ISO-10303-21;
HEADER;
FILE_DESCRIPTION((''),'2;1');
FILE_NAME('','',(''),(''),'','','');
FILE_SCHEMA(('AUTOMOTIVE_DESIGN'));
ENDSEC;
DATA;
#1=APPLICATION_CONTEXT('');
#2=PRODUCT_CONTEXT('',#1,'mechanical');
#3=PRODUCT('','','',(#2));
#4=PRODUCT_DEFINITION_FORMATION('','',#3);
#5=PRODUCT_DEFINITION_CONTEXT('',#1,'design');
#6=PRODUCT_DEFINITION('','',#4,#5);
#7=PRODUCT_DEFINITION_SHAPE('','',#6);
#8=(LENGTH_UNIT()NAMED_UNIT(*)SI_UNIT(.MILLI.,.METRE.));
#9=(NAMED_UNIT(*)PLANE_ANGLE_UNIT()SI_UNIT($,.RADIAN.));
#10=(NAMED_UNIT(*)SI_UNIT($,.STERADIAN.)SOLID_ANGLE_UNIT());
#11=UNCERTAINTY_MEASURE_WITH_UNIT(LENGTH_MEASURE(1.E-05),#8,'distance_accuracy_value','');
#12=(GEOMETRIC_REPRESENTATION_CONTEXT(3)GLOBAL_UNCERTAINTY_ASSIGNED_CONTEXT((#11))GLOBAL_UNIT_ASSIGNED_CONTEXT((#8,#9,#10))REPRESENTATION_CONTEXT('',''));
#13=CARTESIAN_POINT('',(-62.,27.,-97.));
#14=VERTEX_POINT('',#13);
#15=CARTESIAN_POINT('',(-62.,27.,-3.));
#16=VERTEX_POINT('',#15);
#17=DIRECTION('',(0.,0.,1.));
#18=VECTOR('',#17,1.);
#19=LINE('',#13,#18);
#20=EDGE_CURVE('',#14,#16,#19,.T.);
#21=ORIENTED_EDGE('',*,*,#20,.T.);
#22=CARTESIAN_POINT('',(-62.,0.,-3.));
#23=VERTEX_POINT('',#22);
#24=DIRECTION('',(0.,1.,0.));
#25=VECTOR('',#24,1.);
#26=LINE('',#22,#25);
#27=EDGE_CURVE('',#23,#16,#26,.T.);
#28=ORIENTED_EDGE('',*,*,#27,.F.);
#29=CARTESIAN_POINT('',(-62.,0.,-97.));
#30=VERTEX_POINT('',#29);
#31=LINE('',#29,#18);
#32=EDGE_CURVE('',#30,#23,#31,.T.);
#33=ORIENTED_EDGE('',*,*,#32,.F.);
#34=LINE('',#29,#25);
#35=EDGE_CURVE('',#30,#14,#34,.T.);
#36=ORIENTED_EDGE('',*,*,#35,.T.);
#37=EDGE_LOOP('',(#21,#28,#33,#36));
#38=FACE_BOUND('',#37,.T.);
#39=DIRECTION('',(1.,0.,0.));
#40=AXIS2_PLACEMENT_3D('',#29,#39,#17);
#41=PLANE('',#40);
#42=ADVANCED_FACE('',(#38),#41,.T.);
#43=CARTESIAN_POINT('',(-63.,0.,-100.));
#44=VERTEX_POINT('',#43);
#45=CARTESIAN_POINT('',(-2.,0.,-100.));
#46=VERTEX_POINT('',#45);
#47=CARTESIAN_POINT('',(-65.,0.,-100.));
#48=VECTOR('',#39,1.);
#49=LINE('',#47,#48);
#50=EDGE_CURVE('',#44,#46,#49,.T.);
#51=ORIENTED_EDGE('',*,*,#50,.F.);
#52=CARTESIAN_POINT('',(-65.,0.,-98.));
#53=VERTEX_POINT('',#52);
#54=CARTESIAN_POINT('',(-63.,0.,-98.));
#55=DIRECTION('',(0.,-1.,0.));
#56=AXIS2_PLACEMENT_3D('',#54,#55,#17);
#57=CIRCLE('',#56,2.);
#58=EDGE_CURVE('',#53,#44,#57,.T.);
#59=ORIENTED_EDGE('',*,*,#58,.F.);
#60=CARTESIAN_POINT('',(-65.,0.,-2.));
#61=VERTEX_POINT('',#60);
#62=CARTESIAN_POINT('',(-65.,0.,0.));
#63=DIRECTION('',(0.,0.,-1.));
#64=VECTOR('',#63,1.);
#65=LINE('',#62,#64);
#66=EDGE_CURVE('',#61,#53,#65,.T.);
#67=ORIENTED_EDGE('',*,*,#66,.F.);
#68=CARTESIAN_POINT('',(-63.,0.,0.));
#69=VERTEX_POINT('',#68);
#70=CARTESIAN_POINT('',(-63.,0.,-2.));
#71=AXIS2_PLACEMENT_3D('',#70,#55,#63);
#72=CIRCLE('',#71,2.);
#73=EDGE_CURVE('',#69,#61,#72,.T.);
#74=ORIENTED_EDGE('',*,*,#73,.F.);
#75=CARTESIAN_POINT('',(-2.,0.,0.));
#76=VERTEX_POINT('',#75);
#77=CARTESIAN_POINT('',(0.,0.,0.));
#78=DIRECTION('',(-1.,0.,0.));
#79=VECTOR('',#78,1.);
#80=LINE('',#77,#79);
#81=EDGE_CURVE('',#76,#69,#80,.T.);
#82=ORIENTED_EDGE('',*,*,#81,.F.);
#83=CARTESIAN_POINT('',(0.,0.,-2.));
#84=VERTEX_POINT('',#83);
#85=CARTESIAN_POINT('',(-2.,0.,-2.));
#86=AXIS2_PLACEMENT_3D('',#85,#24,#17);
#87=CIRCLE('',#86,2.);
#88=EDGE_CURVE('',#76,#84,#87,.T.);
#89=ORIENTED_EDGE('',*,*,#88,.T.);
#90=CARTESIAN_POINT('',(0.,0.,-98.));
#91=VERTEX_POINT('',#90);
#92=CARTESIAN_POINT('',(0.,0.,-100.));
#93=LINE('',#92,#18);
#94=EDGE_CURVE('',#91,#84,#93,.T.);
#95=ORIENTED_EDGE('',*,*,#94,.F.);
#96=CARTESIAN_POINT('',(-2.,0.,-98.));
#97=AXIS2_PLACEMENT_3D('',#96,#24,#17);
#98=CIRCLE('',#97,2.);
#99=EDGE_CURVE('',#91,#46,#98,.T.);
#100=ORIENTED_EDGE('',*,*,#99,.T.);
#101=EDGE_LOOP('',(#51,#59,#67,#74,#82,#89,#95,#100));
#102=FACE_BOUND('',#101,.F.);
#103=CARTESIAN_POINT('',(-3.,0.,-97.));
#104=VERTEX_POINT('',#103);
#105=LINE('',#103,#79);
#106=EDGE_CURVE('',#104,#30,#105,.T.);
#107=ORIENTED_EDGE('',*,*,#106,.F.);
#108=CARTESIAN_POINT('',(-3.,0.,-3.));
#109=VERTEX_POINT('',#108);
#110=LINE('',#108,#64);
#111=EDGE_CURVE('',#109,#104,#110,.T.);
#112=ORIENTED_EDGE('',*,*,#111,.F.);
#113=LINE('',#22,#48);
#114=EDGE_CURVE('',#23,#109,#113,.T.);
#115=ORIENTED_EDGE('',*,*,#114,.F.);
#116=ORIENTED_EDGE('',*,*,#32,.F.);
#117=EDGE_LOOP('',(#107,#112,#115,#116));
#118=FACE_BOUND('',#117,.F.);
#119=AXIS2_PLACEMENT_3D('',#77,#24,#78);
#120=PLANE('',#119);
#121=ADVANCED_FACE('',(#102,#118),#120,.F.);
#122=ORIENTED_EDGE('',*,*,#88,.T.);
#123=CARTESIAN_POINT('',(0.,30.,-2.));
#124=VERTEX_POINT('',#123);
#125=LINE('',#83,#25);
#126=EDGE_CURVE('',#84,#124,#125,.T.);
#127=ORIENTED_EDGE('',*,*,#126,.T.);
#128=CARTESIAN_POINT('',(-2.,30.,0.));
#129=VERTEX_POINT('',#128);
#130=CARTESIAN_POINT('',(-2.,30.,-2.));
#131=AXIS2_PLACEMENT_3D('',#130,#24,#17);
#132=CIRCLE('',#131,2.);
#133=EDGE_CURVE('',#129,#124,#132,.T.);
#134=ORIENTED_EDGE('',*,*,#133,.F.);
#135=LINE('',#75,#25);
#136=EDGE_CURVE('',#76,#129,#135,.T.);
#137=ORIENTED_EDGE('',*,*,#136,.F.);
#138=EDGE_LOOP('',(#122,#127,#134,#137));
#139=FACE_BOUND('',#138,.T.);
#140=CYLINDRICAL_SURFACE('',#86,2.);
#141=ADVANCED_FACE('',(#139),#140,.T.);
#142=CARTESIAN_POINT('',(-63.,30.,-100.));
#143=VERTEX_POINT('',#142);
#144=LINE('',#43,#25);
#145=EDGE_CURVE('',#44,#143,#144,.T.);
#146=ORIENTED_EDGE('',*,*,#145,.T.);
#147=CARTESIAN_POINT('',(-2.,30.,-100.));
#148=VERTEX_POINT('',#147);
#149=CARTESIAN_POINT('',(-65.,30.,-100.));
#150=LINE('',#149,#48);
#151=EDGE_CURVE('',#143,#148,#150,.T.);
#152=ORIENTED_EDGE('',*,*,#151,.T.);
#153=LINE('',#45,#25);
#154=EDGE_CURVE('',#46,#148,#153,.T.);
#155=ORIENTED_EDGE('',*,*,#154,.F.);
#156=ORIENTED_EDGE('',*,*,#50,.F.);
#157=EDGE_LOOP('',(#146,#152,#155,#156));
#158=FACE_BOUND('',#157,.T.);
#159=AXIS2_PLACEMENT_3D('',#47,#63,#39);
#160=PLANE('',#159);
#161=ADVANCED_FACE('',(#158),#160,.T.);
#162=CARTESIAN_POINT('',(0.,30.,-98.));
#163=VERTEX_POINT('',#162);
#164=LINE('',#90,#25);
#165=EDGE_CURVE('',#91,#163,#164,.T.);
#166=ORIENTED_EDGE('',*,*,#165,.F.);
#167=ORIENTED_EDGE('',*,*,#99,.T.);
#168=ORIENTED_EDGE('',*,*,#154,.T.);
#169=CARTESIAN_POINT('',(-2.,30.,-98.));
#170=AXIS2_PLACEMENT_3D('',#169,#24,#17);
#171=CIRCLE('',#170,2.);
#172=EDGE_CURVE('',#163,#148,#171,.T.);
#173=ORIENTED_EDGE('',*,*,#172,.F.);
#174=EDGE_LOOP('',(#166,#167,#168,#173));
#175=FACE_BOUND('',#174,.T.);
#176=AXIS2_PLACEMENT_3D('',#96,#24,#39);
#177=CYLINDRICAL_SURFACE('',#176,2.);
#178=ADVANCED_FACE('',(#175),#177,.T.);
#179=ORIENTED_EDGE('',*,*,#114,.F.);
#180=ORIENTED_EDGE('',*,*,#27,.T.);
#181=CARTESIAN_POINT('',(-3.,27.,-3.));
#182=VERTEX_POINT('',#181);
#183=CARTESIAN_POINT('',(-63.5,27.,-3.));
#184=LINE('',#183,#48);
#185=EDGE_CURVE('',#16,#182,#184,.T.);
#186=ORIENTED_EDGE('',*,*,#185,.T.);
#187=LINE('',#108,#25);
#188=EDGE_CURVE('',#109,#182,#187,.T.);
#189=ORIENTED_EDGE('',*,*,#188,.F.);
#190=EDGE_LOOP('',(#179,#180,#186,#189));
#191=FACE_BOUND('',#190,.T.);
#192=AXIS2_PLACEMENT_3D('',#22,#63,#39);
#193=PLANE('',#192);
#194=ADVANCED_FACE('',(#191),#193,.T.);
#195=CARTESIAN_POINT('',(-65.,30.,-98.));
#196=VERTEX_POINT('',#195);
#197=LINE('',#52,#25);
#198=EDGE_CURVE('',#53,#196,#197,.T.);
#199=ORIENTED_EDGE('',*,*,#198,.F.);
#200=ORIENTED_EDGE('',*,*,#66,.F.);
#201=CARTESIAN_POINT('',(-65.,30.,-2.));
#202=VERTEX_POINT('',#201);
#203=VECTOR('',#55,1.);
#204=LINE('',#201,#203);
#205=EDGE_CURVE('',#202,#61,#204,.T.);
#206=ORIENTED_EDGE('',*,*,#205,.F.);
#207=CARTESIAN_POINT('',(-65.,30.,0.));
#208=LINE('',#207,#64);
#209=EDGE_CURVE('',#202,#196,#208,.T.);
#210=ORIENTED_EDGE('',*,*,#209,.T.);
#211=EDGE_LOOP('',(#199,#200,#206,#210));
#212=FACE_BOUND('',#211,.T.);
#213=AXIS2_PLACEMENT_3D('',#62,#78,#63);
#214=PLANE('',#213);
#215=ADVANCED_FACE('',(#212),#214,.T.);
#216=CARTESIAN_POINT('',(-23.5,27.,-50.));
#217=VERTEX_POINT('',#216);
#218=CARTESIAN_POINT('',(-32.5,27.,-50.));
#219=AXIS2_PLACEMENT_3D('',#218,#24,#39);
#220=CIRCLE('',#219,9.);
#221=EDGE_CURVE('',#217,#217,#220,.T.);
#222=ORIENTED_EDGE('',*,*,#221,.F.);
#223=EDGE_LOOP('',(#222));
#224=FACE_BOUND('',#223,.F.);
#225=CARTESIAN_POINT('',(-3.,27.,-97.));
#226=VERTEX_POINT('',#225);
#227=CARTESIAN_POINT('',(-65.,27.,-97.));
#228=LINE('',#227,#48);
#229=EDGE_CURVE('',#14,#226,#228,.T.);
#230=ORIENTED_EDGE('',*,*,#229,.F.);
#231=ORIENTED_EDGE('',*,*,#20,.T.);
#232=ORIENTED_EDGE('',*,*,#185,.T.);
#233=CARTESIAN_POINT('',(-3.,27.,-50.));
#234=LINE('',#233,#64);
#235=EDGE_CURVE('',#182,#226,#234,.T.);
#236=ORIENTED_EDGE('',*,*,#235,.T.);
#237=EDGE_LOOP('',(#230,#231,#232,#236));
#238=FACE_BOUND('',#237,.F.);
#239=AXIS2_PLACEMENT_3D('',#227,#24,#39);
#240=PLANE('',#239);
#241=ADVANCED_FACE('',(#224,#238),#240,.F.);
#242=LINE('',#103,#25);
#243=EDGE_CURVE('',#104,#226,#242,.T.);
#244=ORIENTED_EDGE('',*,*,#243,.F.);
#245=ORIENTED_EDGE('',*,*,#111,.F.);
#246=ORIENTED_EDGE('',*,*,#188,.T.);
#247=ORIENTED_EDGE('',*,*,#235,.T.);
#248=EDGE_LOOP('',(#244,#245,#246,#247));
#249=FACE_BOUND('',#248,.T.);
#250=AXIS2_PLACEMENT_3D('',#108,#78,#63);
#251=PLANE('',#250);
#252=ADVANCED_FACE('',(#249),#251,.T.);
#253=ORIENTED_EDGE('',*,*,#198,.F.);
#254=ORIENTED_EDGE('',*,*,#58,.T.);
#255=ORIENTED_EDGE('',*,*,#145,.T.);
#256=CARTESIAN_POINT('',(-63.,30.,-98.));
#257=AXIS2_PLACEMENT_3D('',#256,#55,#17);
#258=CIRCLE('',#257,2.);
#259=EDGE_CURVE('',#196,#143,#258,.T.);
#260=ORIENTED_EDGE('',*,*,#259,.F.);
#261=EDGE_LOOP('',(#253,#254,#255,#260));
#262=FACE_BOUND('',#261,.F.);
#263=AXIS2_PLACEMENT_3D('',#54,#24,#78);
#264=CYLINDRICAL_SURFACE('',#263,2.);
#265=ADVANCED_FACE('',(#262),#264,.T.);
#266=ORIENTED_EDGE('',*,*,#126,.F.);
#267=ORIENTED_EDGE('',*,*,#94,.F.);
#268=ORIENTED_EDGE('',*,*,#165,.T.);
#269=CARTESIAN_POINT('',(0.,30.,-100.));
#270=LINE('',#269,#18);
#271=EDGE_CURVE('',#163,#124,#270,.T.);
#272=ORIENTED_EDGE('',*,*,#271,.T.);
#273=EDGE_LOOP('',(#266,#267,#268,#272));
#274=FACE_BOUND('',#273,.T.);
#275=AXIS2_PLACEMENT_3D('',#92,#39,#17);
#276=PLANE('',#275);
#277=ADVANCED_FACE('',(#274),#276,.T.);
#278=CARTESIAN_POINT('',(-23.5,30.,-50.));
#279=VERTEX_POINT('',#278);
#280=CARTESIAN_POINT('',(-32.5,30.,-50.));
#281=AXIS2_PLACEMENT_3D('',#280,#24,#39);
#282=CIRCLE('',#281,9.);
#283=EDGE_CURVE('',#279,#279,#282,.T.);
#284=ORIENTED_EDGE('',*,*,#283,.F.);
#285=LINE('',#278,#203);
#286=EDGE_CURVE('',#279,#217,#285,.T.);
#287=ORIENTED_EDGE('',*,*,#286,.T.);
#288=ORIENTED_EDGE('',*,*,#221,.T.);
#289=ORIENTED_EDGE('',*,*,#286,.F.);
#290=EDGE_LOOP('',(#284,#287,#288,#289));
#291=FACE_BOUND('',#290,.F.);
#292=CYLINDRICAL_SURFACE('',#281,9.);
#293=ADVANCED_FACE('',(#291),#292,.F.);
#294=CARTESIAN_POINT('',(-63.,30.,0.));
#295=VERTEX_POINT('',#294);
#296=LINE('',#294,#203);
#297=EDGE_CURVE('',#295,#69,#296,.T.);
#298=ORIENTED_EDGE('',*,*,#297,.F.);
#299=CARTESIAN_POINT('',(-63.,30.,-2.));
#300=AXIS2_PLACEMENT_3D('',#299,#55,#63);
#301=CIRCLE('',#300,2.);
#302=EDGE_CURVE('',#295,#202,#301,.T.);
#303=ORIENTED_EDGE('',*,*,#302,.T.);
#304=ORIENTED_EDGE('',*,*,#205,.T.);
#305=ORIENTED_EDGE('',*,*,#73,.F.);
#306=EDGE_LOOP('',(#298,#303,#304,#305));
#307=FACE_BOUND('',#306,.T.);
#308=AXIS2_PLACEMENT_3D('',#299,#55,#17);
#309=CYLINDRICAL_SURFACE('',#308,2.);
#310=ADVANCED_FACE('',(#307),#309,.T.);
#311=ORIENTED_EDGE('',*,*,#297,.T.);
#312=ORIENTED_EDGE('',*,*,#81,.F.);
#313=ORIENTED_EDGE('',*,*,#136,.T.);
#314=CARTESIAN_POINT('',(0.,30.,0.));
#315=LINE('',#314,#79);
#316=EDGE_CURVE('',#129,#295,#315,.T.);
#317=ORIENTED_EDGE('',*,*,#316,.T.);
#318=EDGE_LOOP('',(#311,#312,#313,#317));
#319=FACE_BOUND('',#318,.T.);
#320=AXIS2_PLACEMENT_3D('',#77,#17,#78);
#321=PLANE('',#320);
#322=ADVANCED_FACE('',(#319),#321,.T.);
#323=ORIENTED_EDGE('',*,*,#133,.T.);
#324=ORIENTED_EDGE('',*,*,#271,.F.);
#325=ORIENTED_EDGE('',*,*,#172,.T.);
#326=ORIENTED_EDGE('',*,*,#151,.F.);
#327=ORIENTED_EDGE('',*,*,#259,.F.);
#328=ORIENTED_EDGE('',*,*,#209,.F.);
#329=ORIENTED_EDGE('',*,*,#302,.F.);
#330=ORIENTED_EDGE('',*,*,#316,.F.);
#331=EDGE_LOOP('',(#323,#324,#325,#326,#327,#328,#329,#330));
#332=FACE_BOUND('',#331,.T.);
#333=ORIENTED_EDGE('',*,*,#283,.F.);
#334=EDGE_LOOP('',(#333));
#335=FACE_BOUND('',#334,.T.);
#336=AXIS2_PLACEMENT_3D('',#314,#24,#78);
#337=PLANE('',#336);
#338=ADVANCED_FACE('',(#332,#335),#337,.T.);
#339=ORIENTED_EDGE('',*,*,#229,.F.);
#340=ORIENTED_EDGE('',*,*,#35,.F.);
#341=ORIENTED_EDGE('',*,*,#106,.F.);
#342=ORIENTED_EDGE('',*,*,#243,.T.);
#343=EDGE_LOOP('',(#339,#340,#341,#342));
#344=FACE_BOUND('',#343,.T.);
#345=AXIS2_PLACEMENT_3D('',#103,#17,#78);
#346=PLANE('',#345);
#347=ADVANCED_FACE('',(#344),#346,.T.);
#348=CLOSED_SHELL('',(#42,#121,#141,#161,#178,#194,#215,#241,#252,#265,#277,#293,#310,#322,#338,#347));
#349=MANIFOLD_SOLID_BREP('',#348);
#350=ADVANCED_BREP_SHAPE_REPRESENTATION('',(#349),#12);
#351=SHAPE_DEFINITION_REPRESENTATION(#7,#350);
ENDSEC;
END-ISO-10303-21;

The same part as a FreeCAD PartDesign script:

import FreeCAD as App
import Part
import Sketcher

V = App.Vector
Q = App.Units.Quantity


def edges_at(feature, points):
    """Names of the edges that pass closest to the given points."""
    edges = feature.Shape.Edges
    near = lambda p: min(range(len(edges)), key=lambda i: edges[i].distToShape(Part.Vertex(*p))[0])
    return sorted({f"Edge{near(p) + 1}" for p in points})


def add_polygon(sketch, points):
    """Adds a closed chain of lines whose ends are joined by coincident constraints."""
    first, n = sketch.GeometryCount, len(points)
    for a, b in zip(points, points[1:] + points[:1]):
        sketch.addGeometry(Part.LineSegment(App.Vector(*a, 0), App.Vector(*b, 0)), False)
    for i in range(n):
        sketch.addConstraint(Sketcher.Constraint("Coincident", first + i, 2, first + (i + 1) % n, 1))

doc = App.newDocument("Part")
body = doc.addObject("PartDesign::Body", "Body")

# Sketch on XZ plane
sketch1 = body.newObject("Sketcher::SketchObject", "Sketch")
sketch1.AttachmentSupport = (doc.getObject("XZ_Plane"), [""])
sketch1.MapMode = "FlatFace"
add_polygon(sketch1, [(-65, 0), (0, 0), (0, -100), (-65, -100)])  # lines 0-3
add_polygon(sketch1, [(-3, -3), (-62, -3), (-62, -97), (-3, -97)])  # lines 4-7
sketch1.addConstraint([
    Sketcher.Constraint("Horizontal", 0),
    Sketcher.Constraint("Vertical", 1),
    Sketcher.Constraint("Horizontal", 2),
    Sketcher.Constraint("Vertical", 3),
    Sketcher.Constraint("Horizontal", 4),
    Sketcher.Constraint("Vertical", 5),
    Sketcher.Constraint("Horizontal", 6),
    Sketcher.Constraint("Vertical", 7),
    Sketcher.Constraint("Coincident", 0, 2, -1, 1),
    Sketcher.Constraint("DistanceX", 0, 1, 0, 2, Q("65 mm")),
    Sketcher.Constraint("DistanceY", 1, 2, 1, 1, Q("100 mm")),
    Sketcher.Constraint("DistanceY", 4, 2, -1, 1, Q("3 mm")),
    Sketcher.Constraint("DistanceX", 6, 2, -1, 1, Q("3 mm")),
    Sketcher.Constraint("DistanceX", 3, 2, 4, 2, Q("3 mm")),
    Sketcher.Constraint("DistanceY", 2, 2, 5, 2, Q("3 mm")),
])
pad1 = body.newObject("PartDesign::Pad", "Pad")
pad1.Profile = sketch1
pad1.Length = 30
pad1.Reversed = True

# Sketch on XY plane
sketch2 = body.newObject("Sketcher::SketchObject", "Sketch001")
sketch2.AttachmentSupport = (doc.getObject("XY_Plane"), [""])
sketch2.MapMode = "FlatFace"
sketch2.AttachmentOffset = App.Placement(V(0, 0, -97), App.Rotation())
add_polygon(sketch2, [(0, 27), (0, 30), (-65, 30), (-65, 27)])  # lines 0-3
sketch2.addConstraint([
    Sketcher.Constraint("Vertical", 0),
    Sketcher.Constraint("Horizontal", 1),
    Sketcher.Constraint("Vertical", 2),
    Sketcher.Constraint("Horizontal", 3),
    Sketcher.Constraint("PointOnObject", 0, 2, -2),
    Sketcher.Constraint("DistanceY", 0, 1, 0, 2, Q("3 mm")),
    Sketcher.Constraint("DistanceX", 1, 2, 1, 1, Q("65 mm")),
    Sketcher.Constraint("DistanceY", -1, 1, 0, 2, Q("30 mm")),
])
pad2 = body.newObject("PartDesign::Pad", "Pad001")
pad2.Profile = sketch2
pad2.Length = 97

# Sketch on XZ plane
sketch3 = body.newObject("Sketcher::SketchObject", "Sketch002")
sketch3.AttachmentSupport = (doc.getObject("XZ_Plane"), [""])
sketch3.MapMode = "FlatFace"
sketch3.AttachmentOffset = App.Placement(V(0, 0, -30), App.Rotation())
sketch3.addGeometry(Part.Circle(V(-32.5, -50, 0), V(0, 0, 1), 9), False)
sketch3.addConstraint([
    Sketcher.Constraint("Diameter", 0, Q("18 mm")),
    Sketcher.Constraint("DistanceY", 0, 3, -1, 1, Q("50 mm")),
    Sketcher.Constraint("DistanceX", 0, 3, -1, 1, Q("32.5 mm")),
])
pocket1 = body.newObject("PartDesign::Pocket", "Pocket")
pocket1.Profile = sketch3
pocket1.Length = 97
pocket1.Reversed = True
doc.recompute()

fillet = body.newObject("PartDesign::Fillet", "Fillet")
fillet.Base = (pocket1, edges_at(pocket1, [
    (0, 15, 0),
    (-65, 15, 0),
    (0, 15, -100),
    (-65, 15, -100),
]))
fillet.Radius = 2

doc.recompute()
